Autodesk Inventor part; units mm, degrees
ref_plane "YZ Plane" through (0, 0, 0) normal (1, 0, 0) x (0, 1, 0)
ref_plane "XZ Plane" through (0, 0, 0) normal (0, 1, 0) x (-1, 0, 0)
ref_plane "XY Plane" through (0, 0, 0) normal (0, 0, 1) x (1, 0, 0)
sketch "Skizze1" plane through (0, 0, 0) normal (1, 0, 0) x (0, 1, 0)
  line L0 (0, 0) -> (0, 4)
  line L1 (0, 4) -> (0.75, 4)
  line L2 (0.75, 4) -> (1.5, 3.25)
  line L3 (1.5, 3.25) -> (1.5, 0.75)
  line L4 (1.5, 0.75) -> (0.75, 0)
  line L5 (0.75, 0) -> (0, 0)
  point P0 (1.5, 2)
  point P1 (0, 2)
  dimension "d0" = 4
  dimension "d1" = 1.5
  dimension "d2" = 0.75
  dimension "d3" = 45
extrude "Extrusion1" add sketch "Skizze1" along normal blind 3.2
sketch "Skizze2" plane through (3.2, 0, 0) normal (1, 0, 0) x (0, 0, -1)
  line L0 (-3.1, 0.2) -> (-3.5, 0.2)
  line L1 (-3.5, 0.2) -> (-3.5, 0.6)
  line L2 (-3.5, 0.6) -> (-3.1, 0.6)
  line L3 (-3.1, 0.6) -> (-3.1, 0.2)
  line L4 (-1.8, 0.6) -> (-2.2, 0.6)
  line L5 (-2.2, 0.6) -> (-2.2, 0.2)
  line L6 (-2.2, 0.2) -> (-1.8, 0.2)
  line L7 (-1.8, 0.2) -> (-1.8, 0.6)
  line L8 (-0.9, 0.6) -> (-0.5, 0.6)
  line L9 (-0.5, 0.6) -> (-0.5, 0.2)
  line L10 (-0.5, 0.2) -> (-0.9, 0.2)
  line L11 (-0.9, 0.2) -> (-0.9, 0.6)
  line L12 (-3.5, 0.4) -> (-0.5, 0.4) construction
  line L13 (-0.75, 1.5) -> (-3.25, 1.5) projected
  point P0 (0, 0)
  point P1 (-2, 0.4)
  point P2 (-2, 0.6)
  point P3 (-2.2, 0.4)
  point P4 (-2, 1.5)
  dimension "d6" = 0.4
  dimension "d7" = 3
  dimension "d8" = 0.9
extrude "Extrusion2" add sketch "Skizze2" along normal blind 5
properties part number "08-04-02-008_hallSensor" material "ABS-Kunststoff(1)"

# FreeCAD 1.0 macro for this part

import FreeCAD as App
import Part
import Sketcher
from FreeCAD import Vector

doc = App.newDocument("Part")
body = doc.addObject("PartDesign::Body", "Body")

sketch1 = doc.addObject("Sketcher::SketchObject", "Sketch")
body.addObject(sketch1)
sketch1.AttachmentSupport = (doc.YZ_Plane, [""])
sketch1.MapMode = "FlatFace"
sketch1.addGeometry(Part.LineSegment(Vector(0, 4, 0), Vector(0, 0, 0)), False)
sketch1.addGeometry(Part.LineSegment(Vector(0, 0, 0), Vector(0.8, 0, 0)), False)
sketch1.addGeometry(Part.LineSegment(Vector(0.8, 0, 0), Vector(1.5, 0.8, 0)), False)
sketch1.addGeometry(Part.LineSegment(Vector(1.5, 0.8, 0), Vector(1.5, 3.2, 0)), False)
sketch1.addGeometry(Part.LineSegment(Vector(1.5, 3.2, 0), Vector(0.8, 4, 0)), False)
sketch1.addGeometry(Part.LineSegment(Vector(0.8, 4, 0), Vector(0, 4, 0)), False)
sketch1.addConstraint(Sketcher.Constraint("Coincident", 0, 2, 1, 1))
sketch1.addConstraint(Sketcher.Constraint("Coincident", 1, 2, 2, 1))
sketch1.addConstraint(Sketcher.Constraint("Coincident", 2, 2, 3, 1))
sketch1.addConstraint(Sketcher.Constraint("Coincident", 3, 2, 4, 1))
sketch1.addConstraint(Sketcher.Constraint("Coincident", 4, 2, 5, 1))
sketch1.addConstraint(Sketcher.Constraint("Coincident", 5, 2, 0, 1))
sketch1.addConstraint(Sketcher.Constraint("Vertical", 0))
sketch1.addConstraint(Sketcher.Constraint("Horizontal", 1))
sketch1.addConstraint(Sketcher.Constraint("Vertical", 3))
sketch1.addConstraint(Sketcher.Constraint("Horizontal", 5))
sketch1.addConstraint(Sketcher.Constraint("Coincident", 0, 2, -1, 1))
sketch1.addConstraint(Sketcher.Constraint("Perpendicular", 2, 4))
sketch1.addConstraint(Sketcher.Constraint("Vertical", 1, 2, 4, 2))
sketch1.addConstraint(Sketcher.Constraint("Equal", 2, 4))
sketch1.addConstraint(Sketcher.Constraint("DistanceY", 0, 2, 0, 1, 4.0))
sketch1.addConstraint(Sketcher.Constraint("DistanceX", 1, 1, 1, 2, 0.75))
sketch1.addConstraint(Sketcher.Constraint("DistanceX", -1, 1, 2, 2, 1.5))
pad1 = doc.addObject("PartDesign::Pad", "Pad")
body.addObject(pad1)
pad1.Profile = sketch1
pad1.Length = 3.2

sketch2 = doc.addObject("Sketcher::SketchObject", "Sketch001")
body.addObject(sketch2)
sketch2.AttachmentSupport = (doc.YZ_Plane, [""])
sketch2.MapMode = "FlatFace"
sketch2.AttachmentOffset = App.Placement(Vector(0, 0, 3.2), App.Rotation())
sketch2.addGeometry(Part.LineSegment(Vector(0.2, 3.5, 0), Vector(0.2, 3.1, 0)), False)
sketch2.addGeometry(Part.LineSegment(Vector(0.2, 3.1, 0), Vector(0.6, 3.1, 0)), False)
sketch2.addGeometry(Part.LineSegment(Vector(0.6, 3.1, 0), Vector(0.6, 3.5, 0)), False)
sketch2.addGeometry(Part.LineSegment(Vector(0.6, 3.5, 0), Vector(0.2, 3.5, 0)), False)
sketch2.addGeometry(Part.LineSegment(Vector(0.2, 1.8, 0), Vector(0.6, 1.8, 0)), False)
sketch2.addGeometry(Part.LineSegment(Vector(0.6, 1.8, 0), Vector(0.6, 2.2, 0)), False)
sketch2.addGeometry(Part.LineSegment(Vector(0.6, 2.2, 0), Vector(0.2, 2.2, 0)), False)
sketch2.addGeometry(Part.LineSegment(Vector(0.2, 2.2, 0), Vector(0.2, 1.8, 0)), False)
sketch2.addGeometry(Part.LineSegment(Vector(0.6, 0.5, 0), Vector(0.6, 0.9, 0)), False)
sketch2.addGeometry(Part.LineSegment(Vector(0.6, 0.9, 0), Vector(0.2, 0.9, 0)), False)
sketch2.addGeometry(Part.LineSegment(Vector(0.2, 0.9, 0), Vector(0.2, 0.5, 0)), False)
sketch2.addGeometry(Part.LineSegment(Vector(0.2, 0.5, 0), Vector(0.6, 0.5, 0)), False)
sketch2.addConstraint(Sketcher.Constraint("Coincident", 0, 2, 1, 1))
sketch2.addConstraint(Sketcher.Constraint("Coincident", 1, 2, 2, 1))
sketch2.addConstraint(Sketcher.Constraint("Coincident", 2, 2, 3, 1))
sketch2.addConstraint(Sketcher.Constraint("Coincident", 3, 2, 0, 1))
sketch2.addConstraint(Sketcher.Constraint("Coincident", 4, 2, 5, 1))
sketch2.addConstraint(Sketcher.Constraint("Coincident", 5, 2, 6, 1))
sketch2.addConstraint(Sketcher.Constraint("Coincident", 6, 2, 7, 1))
sketch2.addConstraint(Sketcher.Constraint("Coincident", 7, 2, 4, 1))
sketch2.addConstraint(Sketcher.Constraint("Coincident", 8, 2, 9, 1))
sketch2.addConstraint(Sketcher.Constraint("Coincident", 9, 2, 10, 1))
sketch2.addConstraint(Sketcher.Constraint("Coincident", 10, 2, 11, 1))
sketch2.addConstraint(Sketcher.Constraint("Coincident", 11, 2, 8, 1))
sketch2.addConstraint(Sketcher.Constraint("Vertical", 0))
sketch2.addConstraint(Sketcher.Constraint("Horizontal", 1))
sketch2.addConstraint(Sketcher.Constraint("Vertical", 2))
sketch2.addConstraint(Sketcher.Constraint("Horizontal", 3))
sketch2.addConstraint(Sketcher.Constraint("Horizontal", 4))
sketch2.addConstraint(Sketcher.Constraint("Vertical", 5))
sketch2.addConstraint(Sketcher.Constraint("Horizontal", 6))
sketch2.addConstraint(Sketcher.Constraint("Vertical", 7))
sketch2.addConstraint(Sketcher.Constraint("Vertical", 8))
sketch2.addConstraint(Sketcher.Constraint("Horizontal", 9))
sketch2.addConstraint(Sketcher.Constraint("Vertical", 10))
sketch2.addConstraint(Sketcher.Constraint("Horizontal", 11))
sketch2.addConstraint(Sketcher.Constraint("Vertical", 2, 2, 4, 2))
sketch2.addConstraint(Sketcher.Constraint("Vertical", 3, 2, 6, 2))
sketch2.addConstraint(Sketcher.Constraint("Vertical", 5, 2, 8, 2))
sketch2.addConstraint(Sketcher.Constraint("Vertical", 7, 2, 9, 2))
sketch2.addConstraint(Sketcher.Constraint("Equal", 11, 0))
sketch2.addConstraint(Sketcher.Constraint("Equal", 2, 5))
sketch2.addConstraint(Sketcher.Constraint("Equal", 7, 8))
sketch2.addConstraint(Sketcher.Constraint("DistanceX", 1, 1, 1, 2, 0.4))
sketch2.addConstraint(Sketcher.Constraint("DistanceY", -1, 1, 8, 2, 0.9))
sketch2.addConstraint(Sketcher.Constraint("DistanceY", 5, 2, 1, 2, 0.9))
sketch2.addConstraint(Sketcher.Constraint("DistanceY", 8, 2, 4, 2, 0.9))
sketch2.addConstraint(Sketcher.Constraint("DistanceX", -1, 1, 0, 2, 0.2))
pad2 = doc.addObject("PartDesign::Pad", "Pad001")
body.addObject(pad2)
pad2.Profile = sketch2
pad2.Length = 5

doc.recompute()
